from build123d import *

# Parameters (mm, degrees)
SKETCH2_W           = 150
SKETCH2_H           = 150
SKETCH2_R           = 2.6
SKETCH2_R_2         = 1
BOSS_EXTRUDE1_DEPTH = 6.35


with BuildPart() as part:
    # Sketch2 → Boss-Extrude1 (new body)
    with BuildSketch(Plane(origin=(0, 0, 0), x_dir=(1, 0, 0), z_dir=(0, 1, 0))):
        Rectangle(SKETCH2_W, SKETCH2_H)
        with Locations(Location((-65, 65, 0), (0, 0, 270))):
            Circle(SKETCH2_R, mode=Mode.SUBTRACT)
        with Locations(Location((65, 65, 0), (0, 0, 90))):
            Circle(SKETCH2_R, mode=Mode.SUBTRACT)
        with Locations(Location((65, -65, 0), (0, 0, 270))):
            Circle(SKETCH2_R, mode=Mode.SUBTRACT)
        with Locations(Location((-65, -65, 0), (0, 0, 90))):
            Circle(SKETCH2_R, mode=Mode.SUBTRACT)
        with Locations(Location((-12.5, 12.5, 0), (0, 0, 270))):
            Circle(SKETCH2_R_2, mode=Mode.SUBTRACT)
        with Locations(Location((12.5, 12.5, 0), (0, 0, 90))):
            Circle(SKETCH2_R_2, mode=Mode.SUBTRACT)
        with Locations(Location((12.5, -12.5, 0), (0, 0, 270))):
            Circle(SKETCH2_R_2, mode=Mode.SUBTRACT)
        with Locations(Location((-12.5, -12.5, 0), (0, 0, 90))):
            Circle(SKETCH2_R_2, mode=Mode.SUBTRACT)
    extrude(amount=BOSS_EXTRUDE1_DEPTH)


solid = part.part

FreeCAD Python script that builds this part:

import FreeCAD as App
import Part
import Sketcher
from FreeCAD import Vector

doc = App.newDocument("Part")
params = doc.addObject("Spreadsheet::Sheet", "Params")
for row, (alias, value) in enumerate([
    ("sketch1_diameter", "2 mm"),
    ("sketch1_diameter2", "5.2 mm"),
    ("sketch1_width", "150 mm"),
    ("pad1_length", "6.35 mm"),
], start=1):
    params.set(f"A{row}", alias)
    params.set(f"B{row}", "=" + value)
    params.setAlias(f"B{row}", alias)

body = doc.addObject("PartDesign::Body", "Body")

# Sketch on XZ plane
sketch1 = body.newObject("Sketcher::SketchObject", "Sketch")
sketch1.AttachmentSupport = (doc.getObject("XZ_Plane"), [""])
sketch1.MapMode = "FlatFace"
sketch1.addGeometry([
    Part.LineSegment(Vector(-75, -75, 0), Vector(-75, 75, 0)),  # 0
    Part.LineSegment(Vector(-75, 75, 0), Vector(75, 75, 0)),  # 1
    Part.LineSegment(Vector(75, 75, 0), Vector(75, -75, 0)),  # 2
    Part.LineSegment(Vector(75, -75, 0), Vector(-75, -75, 0)),  # 3
    Part.Circle(Vector(-65, 65, 0), Vector(0, 0, 1), 2.6),  # 4
    Part.Circle(Vector(-12.5, 12.5, 0), Vector(0, 0, 1), 1),  # 5
    Part.Circle(Vector(65, 65, 0), Vector(0, 0, 1), 2.6),  # 6
    Part.Circle(Vector(12.5, 12.5, 0), Vector(0, 0, 1), 1),  # 7
    Part.Circle(Vector(-12.5, -12.5, 0), Vector(0, 0, 1), 1),  # 8
    Part.Circle(Vector(-65, -65, 0), Vector(0, 0, 1), 2.6),  # 9
    Part.Circle(Vector(12.5, -12.5, 0), Vector(0, 0, 1), 1),  # 10
    Part.Circle(Vector(65, -65, 0), Vector(0, 0, 1), 2.6),  # 11
], False)
sketch1.addConstraint([
    Sketcher.Constraint("Coincident", 0, 2, 1, 1),
    Sketcher.Constraint("Coincident", 1, 2, 2, 1),
    Sketcher.Constraint("Coincident", 2, 2, 3, 1),
    Sketcher.Constraint("Coincident", 3, 2, 0, 1),
    Sketcher.Constraint("Vertical", 0),
    Sketcher.Constraint("Horizontal", 1),
    Sketcher.Constraint("Vertical", 2),
    Sketcher.Constraint("Horizontal", 3),
    Sketcher.Constraint("Equal", 4, 6),
    Sketcher.Constraint("Equal", 5, 7),
    Sketcher.Constraint("Equal", 7, 8),
    Sketcher.Constraint("Equal", 6, 9),
    Sketcher.Constraint("Equal", 8, 10),
    Sketcher.Constraint("Equal", 9, 11),
    Sketcher.Constraint("Symmetric", 7, 3, 8, 3, -1, 1),
    Sketcher.Constraint("Symmetric", 6, 3, 9, 3, -1, 1),
    Sketcher.Constraint("Symmetric", 5, 3, 10, 3, -1, 1),
    Sketcher.Constraint("Symmetric", 4, 3, 11, 3, -1, 1),
    Sketcher.Constraint("Symmetric", 0, 2, 2, 2, -1, 1),
    Sketcher.Constraint("Symmetric", 4, 3, 6, 3, -2),
    Sketcher.Constraint("Symmetric", 5, 3, 7, 3, -2),
    Sketcher.Constraint("Equal", 3, 0),
    Sketcher.Constraint("Diameter", 5, 2.0),
    Sketcher.Constraint("Diameter", 4, 5.2),
    Sketcher.Constraint("DistanceX", 1, 1, 1, 2, 150.0),
    Sketcher.Constraint("DistanceX", 4, 3, -1, 1, 65.0),
    Sketcher.Constraint("DistanceY", -1, 1, 4, 3, 65.0),
    Sketcher.Constraint("DistanceX", 5, 3, 7, 3, 25.0),
    Sketcher.Constraint("DistanceY", 8, 3, 5, 3, 25.0),
])
sketch1.setExpression("Constraints[22]", "Params.sketch1_diameter")
sketch1.setExpression("Constraints[23]", "Params.sketch1_diameter2")
sketch1.setExpression("Constraints[24]", "Params.sketch1_width")
pad1 = body.newObject("PartDesign::Pad", "Pad")
pad1.Profile = sketch1
pad1.setExpression("Length", "Params.pad1_length")
pad1.Reversed = True

doc.recompute()
